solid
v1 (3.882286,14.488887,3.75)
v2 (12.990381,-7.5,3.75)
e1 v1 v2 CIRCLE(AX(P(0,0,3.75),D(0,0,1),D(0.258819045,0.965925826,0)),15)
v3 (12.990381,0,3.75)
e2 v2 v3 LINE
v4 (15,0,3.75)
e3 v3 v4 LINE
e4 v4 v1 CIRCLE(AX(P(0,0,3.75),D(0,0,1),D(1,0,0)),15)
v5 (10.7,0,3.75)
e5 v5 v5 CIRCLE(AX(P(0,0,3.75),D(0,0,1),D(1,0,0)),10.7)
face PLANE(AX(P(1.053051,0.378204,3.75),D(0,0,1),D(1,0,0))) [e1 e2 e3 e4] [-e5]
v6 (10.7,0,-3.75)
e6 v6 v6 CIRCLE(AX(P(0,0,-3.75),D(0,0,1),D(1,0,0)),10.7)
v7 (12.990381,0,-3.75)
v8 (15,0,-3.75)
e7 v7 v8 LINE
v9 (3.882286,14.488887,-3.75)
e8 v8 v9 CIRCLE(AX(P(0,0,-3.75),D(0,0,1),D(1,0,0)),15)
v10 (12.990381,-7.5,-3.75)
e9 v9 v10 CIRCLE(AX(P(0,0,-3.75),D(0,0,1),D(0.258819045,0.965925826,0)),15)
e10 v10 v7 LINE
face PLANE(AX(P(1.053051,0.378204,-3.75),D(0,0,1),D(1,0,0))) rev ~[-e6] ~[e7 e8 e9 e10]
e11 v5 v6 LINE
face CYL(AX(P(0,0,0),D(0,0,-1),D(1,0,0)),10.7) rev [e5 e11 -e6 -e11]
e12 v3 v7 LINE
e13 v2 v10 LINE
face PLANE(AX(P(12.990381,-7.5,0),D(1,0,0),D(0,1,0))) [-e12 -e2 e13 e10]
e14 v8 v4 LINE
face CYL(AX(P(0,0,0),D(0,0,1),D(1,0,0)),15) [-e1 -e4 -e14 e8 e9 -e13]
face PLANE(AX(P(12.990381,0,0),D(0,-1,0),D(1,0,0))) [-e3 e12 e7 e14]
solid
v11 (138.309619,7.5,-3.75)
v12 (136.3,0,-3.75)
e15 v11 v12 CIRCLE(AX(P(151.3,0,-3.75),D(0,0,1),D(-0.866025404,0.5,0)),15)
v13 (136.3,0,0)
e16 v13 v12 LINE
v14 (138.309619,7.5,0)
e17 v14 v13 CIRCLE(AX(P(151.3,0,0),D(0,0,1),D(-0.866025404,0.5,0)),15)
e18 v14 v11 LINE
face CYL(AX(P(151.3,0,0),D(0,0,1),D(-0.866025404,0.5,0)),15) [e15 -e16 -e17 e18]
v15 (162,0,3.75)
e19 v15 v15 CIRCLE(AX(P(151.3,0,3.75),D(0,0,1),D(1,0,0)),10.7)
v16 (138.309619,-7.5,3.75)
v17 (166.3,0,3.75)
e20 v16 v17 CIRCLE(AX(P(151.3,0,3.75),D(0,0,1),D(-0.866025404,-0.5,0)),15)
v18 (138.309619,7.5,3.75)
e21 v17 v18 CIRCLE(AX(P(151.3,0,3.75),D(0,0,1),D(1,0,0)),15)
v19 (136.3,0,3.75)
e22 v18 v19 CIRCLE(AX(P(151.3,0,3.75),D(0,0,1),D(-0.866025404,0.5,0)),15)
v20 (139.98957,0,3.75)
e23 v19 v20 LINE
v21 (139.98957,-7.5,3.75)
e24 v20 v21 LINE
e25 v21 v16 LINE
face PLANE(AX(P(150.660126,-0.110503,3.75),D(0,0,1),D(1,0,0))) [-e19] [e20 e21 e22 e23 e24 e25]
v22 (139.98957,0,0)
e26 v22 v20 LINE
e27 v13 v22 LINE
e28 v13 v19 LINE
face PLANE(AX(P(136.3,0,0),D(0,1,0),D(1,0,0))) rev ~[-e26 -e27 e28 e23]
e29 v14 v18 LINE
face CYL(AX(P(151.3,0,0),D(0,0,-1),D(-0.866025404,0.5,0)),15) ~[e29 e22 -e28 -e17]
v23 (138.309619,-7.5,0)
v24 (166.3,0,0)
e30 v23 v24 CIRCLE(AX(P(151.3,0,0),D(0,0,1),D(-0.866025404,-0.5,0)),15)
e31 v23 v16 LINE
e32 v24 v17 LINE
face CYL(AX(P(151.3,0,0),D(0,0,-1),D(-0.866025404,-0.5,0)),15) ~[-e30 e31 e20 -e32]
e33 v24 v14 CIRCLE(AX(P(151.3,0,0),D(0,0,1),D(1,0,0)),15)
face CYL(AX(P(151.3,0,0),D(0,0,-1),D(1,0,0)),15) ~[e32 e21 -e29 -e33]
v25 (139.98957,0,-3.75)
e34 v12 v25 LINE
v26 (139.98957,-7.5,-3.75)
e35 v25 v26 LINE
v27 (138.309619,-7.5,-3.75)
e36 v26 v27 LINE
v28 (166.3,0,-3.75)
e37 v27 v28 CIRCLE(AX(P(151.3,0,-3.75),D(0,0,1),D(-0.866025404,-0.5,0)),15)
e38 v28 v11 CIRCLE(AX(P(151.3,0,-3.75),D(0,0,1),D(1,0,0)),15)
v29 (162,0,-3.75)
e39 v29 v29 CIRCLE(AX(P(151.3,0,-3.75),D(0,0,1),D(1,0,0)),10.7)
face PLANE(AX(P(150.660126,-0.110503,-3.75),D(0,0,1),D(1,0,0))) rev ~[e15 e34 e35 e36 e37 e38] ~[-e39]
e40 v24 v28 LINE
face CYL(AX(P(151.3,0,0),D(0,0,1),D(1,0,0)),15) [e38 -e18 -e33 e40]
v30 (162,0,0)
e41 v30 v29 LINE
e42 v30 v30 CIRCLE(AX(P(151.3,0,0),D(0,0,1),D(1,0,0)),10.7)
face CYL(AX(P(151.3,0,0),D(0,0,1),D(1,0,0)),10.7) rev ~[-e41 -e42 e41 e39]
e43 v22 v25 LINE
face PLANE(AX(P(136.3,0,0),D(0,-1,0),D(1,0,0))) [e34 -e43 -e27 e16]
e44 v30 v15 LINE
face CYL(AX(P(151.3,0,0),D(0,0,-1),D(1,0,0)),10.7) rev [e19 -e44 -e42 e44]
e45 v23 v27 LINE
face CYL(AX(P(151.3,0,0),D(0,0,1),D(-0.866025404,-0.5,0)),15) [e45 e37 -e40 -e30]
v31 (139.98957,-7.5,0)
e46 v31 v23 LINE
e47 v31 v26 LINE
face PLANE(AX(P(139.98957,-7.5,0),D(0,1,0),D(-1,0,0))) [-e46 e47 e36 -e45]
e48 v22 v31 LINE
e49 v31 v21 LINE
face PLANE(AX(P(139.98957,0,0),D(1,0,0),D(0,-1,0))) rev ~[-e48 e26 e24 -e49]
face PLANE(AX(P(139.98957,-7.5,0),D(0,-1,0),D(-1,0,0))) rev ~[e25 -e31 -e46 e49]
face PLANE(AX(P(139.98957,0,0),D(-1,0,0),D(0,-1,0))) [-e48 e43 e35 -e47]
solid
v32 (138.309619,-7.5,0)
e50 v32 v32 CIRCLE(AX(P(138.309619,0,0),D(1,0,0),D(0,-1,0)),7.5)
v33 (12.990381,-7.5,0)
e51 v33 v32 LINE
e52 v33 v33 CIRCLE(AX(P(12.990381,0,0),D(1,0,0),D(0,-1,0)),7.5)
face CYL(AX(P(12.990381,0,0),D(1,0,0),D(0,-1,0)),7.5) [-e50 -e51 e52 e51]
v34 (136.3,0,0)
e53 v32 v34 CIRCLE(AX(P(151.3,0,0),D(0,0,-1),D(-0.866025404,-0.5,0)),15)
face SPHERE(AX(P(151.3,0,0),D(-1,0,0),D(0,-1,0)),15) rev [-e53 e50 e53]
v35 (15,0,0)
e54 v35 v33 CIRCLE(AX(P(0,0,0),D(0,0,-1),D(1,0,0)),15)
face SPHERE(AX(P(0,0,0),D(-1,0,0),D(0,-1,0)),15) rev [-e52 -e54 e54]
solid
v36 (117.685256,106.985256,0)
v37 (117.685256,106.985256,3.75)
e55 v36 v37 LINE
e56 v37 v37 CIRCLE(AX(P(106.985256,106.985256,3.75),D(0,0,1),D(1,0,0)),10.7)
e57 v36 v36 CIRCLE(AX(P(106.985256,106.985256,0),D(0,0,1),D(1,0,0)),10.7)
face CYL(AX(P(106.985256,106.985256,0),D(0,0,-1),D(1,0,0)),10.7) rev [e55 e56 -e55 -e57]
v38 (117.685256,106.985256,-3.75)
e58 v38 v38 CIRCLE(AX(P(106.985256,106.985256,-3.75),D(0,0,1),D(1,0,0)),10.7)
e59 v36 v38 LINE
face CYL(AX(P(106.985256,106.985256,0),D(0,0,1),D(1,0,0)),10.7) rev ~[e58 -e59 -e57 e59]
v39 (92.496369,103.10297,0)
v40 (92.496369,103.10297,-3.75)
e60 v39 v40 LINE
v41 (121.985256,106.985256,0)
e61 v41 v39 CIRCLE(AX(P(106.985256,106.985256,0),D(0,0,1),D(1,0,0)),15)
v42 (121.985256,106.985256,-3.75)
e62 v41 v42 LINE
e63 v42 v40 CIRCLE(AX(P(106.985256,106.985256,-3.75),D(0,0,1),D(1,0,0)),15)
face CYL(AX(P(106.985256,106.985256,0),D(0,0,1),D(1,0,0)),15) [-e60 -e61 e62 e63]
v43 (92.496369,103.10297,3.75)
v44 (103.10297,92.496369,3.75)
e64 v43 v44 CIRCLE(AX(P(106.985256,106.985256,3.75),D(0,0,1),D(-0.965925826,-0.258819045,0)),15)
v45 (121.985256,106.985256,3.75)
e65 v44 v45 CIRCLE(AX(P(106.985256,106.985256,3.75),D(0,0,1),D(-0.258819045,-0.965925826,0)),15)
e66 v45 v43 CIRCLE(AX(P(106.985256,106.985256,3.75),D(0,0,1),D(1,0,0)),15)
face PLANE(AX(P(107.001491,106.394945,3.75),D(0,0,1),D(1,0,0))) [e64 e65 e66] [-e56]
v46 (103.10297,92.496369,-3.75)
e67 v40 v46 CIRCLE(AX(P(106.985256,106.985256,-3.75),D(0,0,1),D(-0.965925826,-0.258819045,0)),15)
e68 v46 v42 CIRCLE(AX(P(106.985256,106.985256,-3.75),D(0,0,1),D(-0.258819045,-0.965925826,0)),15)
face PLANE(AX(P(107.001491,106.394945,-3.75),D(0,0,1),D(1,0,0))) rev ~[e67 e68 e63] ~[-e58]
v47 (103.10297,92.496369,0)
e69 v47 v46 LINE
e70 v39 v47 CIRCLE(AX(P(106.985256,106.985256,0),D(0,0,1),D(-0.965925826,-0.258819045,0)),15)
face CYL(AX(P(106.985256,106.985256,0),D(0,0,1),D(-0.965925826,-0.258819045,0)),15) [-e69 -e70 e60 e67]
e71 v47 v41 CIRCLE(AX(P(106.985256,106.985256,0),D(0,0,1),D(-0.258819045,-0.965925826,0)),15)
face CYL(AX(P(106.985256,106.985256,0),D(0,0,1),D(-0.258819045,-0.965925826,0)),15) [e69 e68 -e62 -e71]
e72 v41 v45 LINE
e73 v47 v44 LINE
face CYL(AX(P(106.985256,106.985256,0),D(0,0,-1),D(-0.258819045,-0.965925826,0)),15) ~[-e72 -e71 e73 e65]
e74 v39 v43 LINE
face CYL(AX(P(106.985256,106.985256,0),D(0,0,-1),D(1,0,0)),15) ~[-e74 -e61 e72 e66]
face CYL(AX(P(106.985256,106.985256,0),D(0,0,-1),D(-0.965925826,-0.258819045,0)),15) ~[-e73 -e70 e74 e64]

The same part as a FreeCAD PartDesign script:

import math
import FreeCAD as App
import Part
import Sketcher

doc = App.newDocument("Part")
body = doc.addObject("PartDesign::Body", "Body")

sketch1 = doc.addObject("Sketcher::SketchObject", "Sketch")
body.addObject(sketch1)
sketch1.AttachmentSupport = (doc.XY_Plane, [""])
sketch1.MapMode = "FlatFace"
sketch1.addGeometry(Part.LineSegment(App.Vector(13, 0, 0), App.Vector(15, 0, 0)), False)
sketch1.addGeometry(Part.ArcOfCircle(Part.Circle(App.Vector(0, 0, 0), App.Vector(0, 0, 1), 15), math.radians(0), math.radians(75)), False)
sketch1.addGeometry(Part.ArcOfCircle(Part.Circle(App.Vector(0, 0, 0), App.Vector(0, 0, 1), 15), math.radians(75), math.radians(330)), False)
sketch1.addGeometry(Part.LineSegment(App.Vector(13, -7.5, 0), App.Vector(13, 0, 0)), False)
sketch1.addGeometry(Part.Circle(App.Vector(0, 0, 0), App.Vector(0, 0, 1), 10.7), False)
sketch1.addConstraint(Sketcher.Constraint("Coincident", 0, 2, 1, 1))
sketch1.addConstraint(Sketcher.Constraint("Tangent", 1, 2, 2, 1))
sketch1.addConstraint(Sketcher.Constraint("Coincident", 2, 2, 3, 1))
sketch1.addConstraint(Sketcher.Constraint("Coincident", 3, 2, 0, 1))
sketch1.addConstraint(Sketcher.Constraint("Horizontal", 0))
sketch1.addConstraint(Sketcher.Constraint("Vertical", 3))
sketch1.addConstraint(Sketcher.Constraint("Coincident", 1, 3, -1, 1))
sketch1.addConstraint(Sketcher.Constraint("Coincident", 4, 3, -1, 1))
sketch1.addConstraint(Sketcher.Constraint("Equal", 1, 2))
sketch1.addConstraint(Sketcher.Constraint("PointOnObject", 0, 2, -1))
sketch1.addConstraint(Sketcher.Constraint("Radius", 1, 15.0))
sketch1.addConstraint(Sketcher.Constraint("Diameter", 4, 21.4))
sketch1.addConstraint(Sketcher.Constraint("DistanceY", 3, 1, 3, 2, 7.5))
sketch1.addConstraint(Sketcher.Constraint("DistanceX", -1, 1, 1, 2, 3.882286))
pad1 = doc.addObject("PartDesign::Pad", "Pad")
body.addObject(pad1)
pad1.Profile = sketch1
pad1.Length = 7.5
pad1.Midplane = True
body2 = doc.addObject("PartDesign::Body", "Body001")

sketch2 = doc.addObject("Sketcher::SketchObject", "Sketch001")
body2.addObject(sketch2)
sketch2.AttachmentSupport = (doc.getObject("XY_Plane001"), [""])
sketch2.MapMode = "FlatFace"
sketch2.addGeometry(Part.ArcOfCircle(Part.Circle(App.Vector(151.3, 0, 0), App.Vector(0, 0, 1), 15), math.radians(150), math.radians(180)), False)
sketch2.addGeometry(Part.LineSegment(App.Vector(136.3, 0, 0), App.Vector(140, 0, 0)), False)
sketch2.addGeometry(Part.LineSegment(App.Vector(140, 0, 0), App.Vector(140, -7.5, 0)), False)
sketch2.addGeometry(Part.LineSegment(App.Vector(140, -7.5, 0), App.Vector(138.3, -7.5, 0)), False)
sketch2.addGeometry(Part.ArcOfCircle(Part.Circle(App.Vector(151.3, 0, 0), App.Vector(0, 0, 1), 15), math.radians(-150), math.radians(0)), False)
sketch2.addGeometry(Part.ArcOfCircle(Part.Circle(App.Vector(151.3, 0, 0), App.Vector(0, 0, 1), 15), math.radians(0), math.radians(150)), False)
sketch2.addGeometry(Part.Circle(App.Vector(151.3, 0, 0), App.Vector(0, 0, 1), 10.7), False)
sketch2.addConstraint(Sketcher.Constraint("Coincident", 0, 2, 1, 1))
sketch2.addConstraint(Sketcher.Constraint("Coincident", 1, 2, 2, 1))
sketch2.addConstraint(Sketcher.Constraint("Coincident", 2, 2, 3, 1))
sketch2.addConstraint(Sketcher.Constraint("Coincident", 3, 2, 4, 1))
sketch2.addConstraint(Sketcher.Constraint("Tangent", 4, 2, 5, 1))
sketch2.addConstraint(Sketcher.Constraint("Tangent", 5, 2, 0, 1))
sketch2.addConstraint(Sketcher.Constraint("Horizontal", 1))
sketch2.addConstraint(Sketcher.Constraint("Vertical", 2))
sketch2.addConstraint(Sketcher.Constraint("Horizontal", 3))
sketch2.addConstraint(Sketcher.Constraint("Coincident", 4, 3, 0, 3))
sketch2.addConstraint(Sketcher.Constraint("Coincident", 6, 3, 0, 3))
sketch2.addConstraint(Sketcher.Constraint("Symmetric", 3, 2, 5, 2, -1))
sketch2.addConstraint(Sketcher.Constraint("PointOnObject", 0, 2, -1))
sketch2.addConstraint(Sketcher.Constraint("PointOnObject", 4, 2, -1))
sketch2.addConstraint(Sketcher.Constraint("Radius", 0, 15.0))
sketch2.addConstraint(Sketcher.Constraint("Diameter", 6, 21.4))
sketch2.addConstraint(Sketcher.Constraint("DistanceY", 2, 2, 2, 1, 7.5))
sketch2.addConstraint(Sketcher.Constraint("DistanceX", -1, 1, 0, 3, 151.3))
sketch2.addConstraint(Sketcher.Constraint("DistanceX", 1, 1, 1, 2, 3.68957))
pad2 = doc.addObject("PartDesign::Pad", "Pad001")
body2.addObject(pad2)
pad2.Profile = sketch2
pad2.Length = 7.5
pad2.Midplane = True
body3 = doc.addObject("PartDesign::Body", "Body002")

sketch3 = doc.addObject("Sketcher::SketchObject", "Sketch002")
body3.addObject(sketch3)
sketch3.AttachmentSupport = (doc.getObject("XY_Plane002"), [""])
sketch3.MapMode = "FlatFace"
sketch3.addGeometry(Part.ArcOfCircle(Part.Circle(App.Vector(107, 107, 0), App.Vector(0, 0, 1), 15), math.radians(0), math.radians(195)), False)
sketch3.addGeometry(Part.ArcOfCircle(Part.Circle(App.Vector(107, 107, 0), App.Vector(0, 0, 1), 15), math.radians(-165), math.radians(-105)), False)
sketch3.addGeometry(Part.ArcOfCircle(Part.Circle(App.Vector(107, 107, 0), App.Vector(0, 0, 1), 15), math.radians(-105), math.radians(0)), False)
sketch3.addGeometry(Part.Circle(App.Vector(107, 107, 0), App.Vector(0, 0, 1), 11), False)
sketch3.addConstraint(Sketcher.Constraint("Tangent", 0, 2, 1, 1))
sketch3.addConstraint(Sketcher.Constraint("Tangent", 1, 2, 2, 1))
sketch3.addConstraint(Sketcher.Constraint("Tangent", 2, 2, 0, 1))
sketch3.addConstraint(Sketcher.Constraint("Coincident", 3, 3, 0, 3))
sketch3.addConstraint(Sketcher.Constraint("Horizontal", 3, 3, 2, 2))
sketch3.addConstraint(Sketcher.Constraint("Radius", 0, 15.0))
sketch3.addConstraint(Sketcher.Constraint("Diameter", 3, 21.4))
sketch3.addConstraint(Sketcher.Constraint("DistanceX", 0, 2, 1, 2, 10.606602))
sketch3.addConstraint(Sketcher.Constraint("DistanceY", 1, 2, 0, 2, 10.606602))
sketch3.addConstraint(Sketcher.Constraint("DistanceX", -1, 1, 0, 2, 92.496369))
sketch3.addConstraint(Sketcher.Constraint("DistanceY", -1, 1, 0, 2, 103.10297))
pad3 = doc.addObject("PartDesign::Pad", "Pad002")
body3.addObject(pad3)
pad3.Profile = sketch3
pad3.Length = 7.5
pad3.Midplane = True
body4 = doc.addObject("PartDesign::Body", "Body003")

sketch4 = doc.addObject("Sketcher::SketchObject", "Sketch003")
body4.addObject(sketch4)
sketch4.AttachmentSupport = (doc.getObject("XY_Plane003"), [""])
sketch4.MapMode = "FlatFace"
sketch4.addGeometry(Part.LineSegment(App.Vector(136, 0, 0), App.Vector(15, 0, 0)), False)
sketch4.addGeometry(Part.ArcOfCircle(Part.Circle(App.Vector(0, 0, 0), App.Vector(0, 0, 1), 15), math.radians(-30), math.radians(0)), False)
sketch4.addGeometry(Part.LineSegment(App.Vector(13, -8, 0), App.Vector(138, -8, 0)), False)
sketch4.addGeometry(Part.ArcOfCircle(Part.Circle(App.Vector(151, 0, 0), App.Vector(0, 0, 1), 15), math.radians(180), math.radians(210)), False)
sketch4.addConstraint(Sketcher.Constraint("Coincident", 0, 2, 1, 2))
sketch4.addConstraint(Sketcher.Constraint("Coincident", 1, 1, 2, 1))
sketch4.addConstraint(Sketcher.Constraint("Coincident", 2, 2, 3, 2))
sketch4.addConstraint(Sketcher.Constraint("Coincident", 3, 1, 0, 1))
sketch4.addConstraint(Sketcher.Constraint("Horizontal", 0))
sketch4.addConstraint(Sketcher.Constraint("Horizontal", 2))
sketch4.addConstraint(Sketcher.Constraint("Coincident", 1, 3, -1, 1))
sketch4.addConstraint(Sketcher.Constraint("Equal", 1, 3))
sketch4.addConstraint(Sketcher.Constraint("PointOnObject", 3, 3, -1))
sketch4.addConstraint(Sketcher.Constraint("PointOnObject", 0, 2, -1))
sketch4.addConstraint(Sketcher.Constraint("Radius", 1, 15.0))
sketch4.addConstraint(Sketcher.Constraint("DistanceX", 0, 2, 0, 1, 121.3))
sketch4.addConstraint(Sketcher.Constraint("DistanceY", 1, 1, -1, 1, 7.5))
revolution = doc.addObject("PartDesign::Revolution", "Revolution")
body4.addObject(revolution)
revolution.Profile = sketch4
revolution.ReferenceAxis = (sketch4, ["H_Axis"])
revolution.Angle = 360

doc.recompute()
